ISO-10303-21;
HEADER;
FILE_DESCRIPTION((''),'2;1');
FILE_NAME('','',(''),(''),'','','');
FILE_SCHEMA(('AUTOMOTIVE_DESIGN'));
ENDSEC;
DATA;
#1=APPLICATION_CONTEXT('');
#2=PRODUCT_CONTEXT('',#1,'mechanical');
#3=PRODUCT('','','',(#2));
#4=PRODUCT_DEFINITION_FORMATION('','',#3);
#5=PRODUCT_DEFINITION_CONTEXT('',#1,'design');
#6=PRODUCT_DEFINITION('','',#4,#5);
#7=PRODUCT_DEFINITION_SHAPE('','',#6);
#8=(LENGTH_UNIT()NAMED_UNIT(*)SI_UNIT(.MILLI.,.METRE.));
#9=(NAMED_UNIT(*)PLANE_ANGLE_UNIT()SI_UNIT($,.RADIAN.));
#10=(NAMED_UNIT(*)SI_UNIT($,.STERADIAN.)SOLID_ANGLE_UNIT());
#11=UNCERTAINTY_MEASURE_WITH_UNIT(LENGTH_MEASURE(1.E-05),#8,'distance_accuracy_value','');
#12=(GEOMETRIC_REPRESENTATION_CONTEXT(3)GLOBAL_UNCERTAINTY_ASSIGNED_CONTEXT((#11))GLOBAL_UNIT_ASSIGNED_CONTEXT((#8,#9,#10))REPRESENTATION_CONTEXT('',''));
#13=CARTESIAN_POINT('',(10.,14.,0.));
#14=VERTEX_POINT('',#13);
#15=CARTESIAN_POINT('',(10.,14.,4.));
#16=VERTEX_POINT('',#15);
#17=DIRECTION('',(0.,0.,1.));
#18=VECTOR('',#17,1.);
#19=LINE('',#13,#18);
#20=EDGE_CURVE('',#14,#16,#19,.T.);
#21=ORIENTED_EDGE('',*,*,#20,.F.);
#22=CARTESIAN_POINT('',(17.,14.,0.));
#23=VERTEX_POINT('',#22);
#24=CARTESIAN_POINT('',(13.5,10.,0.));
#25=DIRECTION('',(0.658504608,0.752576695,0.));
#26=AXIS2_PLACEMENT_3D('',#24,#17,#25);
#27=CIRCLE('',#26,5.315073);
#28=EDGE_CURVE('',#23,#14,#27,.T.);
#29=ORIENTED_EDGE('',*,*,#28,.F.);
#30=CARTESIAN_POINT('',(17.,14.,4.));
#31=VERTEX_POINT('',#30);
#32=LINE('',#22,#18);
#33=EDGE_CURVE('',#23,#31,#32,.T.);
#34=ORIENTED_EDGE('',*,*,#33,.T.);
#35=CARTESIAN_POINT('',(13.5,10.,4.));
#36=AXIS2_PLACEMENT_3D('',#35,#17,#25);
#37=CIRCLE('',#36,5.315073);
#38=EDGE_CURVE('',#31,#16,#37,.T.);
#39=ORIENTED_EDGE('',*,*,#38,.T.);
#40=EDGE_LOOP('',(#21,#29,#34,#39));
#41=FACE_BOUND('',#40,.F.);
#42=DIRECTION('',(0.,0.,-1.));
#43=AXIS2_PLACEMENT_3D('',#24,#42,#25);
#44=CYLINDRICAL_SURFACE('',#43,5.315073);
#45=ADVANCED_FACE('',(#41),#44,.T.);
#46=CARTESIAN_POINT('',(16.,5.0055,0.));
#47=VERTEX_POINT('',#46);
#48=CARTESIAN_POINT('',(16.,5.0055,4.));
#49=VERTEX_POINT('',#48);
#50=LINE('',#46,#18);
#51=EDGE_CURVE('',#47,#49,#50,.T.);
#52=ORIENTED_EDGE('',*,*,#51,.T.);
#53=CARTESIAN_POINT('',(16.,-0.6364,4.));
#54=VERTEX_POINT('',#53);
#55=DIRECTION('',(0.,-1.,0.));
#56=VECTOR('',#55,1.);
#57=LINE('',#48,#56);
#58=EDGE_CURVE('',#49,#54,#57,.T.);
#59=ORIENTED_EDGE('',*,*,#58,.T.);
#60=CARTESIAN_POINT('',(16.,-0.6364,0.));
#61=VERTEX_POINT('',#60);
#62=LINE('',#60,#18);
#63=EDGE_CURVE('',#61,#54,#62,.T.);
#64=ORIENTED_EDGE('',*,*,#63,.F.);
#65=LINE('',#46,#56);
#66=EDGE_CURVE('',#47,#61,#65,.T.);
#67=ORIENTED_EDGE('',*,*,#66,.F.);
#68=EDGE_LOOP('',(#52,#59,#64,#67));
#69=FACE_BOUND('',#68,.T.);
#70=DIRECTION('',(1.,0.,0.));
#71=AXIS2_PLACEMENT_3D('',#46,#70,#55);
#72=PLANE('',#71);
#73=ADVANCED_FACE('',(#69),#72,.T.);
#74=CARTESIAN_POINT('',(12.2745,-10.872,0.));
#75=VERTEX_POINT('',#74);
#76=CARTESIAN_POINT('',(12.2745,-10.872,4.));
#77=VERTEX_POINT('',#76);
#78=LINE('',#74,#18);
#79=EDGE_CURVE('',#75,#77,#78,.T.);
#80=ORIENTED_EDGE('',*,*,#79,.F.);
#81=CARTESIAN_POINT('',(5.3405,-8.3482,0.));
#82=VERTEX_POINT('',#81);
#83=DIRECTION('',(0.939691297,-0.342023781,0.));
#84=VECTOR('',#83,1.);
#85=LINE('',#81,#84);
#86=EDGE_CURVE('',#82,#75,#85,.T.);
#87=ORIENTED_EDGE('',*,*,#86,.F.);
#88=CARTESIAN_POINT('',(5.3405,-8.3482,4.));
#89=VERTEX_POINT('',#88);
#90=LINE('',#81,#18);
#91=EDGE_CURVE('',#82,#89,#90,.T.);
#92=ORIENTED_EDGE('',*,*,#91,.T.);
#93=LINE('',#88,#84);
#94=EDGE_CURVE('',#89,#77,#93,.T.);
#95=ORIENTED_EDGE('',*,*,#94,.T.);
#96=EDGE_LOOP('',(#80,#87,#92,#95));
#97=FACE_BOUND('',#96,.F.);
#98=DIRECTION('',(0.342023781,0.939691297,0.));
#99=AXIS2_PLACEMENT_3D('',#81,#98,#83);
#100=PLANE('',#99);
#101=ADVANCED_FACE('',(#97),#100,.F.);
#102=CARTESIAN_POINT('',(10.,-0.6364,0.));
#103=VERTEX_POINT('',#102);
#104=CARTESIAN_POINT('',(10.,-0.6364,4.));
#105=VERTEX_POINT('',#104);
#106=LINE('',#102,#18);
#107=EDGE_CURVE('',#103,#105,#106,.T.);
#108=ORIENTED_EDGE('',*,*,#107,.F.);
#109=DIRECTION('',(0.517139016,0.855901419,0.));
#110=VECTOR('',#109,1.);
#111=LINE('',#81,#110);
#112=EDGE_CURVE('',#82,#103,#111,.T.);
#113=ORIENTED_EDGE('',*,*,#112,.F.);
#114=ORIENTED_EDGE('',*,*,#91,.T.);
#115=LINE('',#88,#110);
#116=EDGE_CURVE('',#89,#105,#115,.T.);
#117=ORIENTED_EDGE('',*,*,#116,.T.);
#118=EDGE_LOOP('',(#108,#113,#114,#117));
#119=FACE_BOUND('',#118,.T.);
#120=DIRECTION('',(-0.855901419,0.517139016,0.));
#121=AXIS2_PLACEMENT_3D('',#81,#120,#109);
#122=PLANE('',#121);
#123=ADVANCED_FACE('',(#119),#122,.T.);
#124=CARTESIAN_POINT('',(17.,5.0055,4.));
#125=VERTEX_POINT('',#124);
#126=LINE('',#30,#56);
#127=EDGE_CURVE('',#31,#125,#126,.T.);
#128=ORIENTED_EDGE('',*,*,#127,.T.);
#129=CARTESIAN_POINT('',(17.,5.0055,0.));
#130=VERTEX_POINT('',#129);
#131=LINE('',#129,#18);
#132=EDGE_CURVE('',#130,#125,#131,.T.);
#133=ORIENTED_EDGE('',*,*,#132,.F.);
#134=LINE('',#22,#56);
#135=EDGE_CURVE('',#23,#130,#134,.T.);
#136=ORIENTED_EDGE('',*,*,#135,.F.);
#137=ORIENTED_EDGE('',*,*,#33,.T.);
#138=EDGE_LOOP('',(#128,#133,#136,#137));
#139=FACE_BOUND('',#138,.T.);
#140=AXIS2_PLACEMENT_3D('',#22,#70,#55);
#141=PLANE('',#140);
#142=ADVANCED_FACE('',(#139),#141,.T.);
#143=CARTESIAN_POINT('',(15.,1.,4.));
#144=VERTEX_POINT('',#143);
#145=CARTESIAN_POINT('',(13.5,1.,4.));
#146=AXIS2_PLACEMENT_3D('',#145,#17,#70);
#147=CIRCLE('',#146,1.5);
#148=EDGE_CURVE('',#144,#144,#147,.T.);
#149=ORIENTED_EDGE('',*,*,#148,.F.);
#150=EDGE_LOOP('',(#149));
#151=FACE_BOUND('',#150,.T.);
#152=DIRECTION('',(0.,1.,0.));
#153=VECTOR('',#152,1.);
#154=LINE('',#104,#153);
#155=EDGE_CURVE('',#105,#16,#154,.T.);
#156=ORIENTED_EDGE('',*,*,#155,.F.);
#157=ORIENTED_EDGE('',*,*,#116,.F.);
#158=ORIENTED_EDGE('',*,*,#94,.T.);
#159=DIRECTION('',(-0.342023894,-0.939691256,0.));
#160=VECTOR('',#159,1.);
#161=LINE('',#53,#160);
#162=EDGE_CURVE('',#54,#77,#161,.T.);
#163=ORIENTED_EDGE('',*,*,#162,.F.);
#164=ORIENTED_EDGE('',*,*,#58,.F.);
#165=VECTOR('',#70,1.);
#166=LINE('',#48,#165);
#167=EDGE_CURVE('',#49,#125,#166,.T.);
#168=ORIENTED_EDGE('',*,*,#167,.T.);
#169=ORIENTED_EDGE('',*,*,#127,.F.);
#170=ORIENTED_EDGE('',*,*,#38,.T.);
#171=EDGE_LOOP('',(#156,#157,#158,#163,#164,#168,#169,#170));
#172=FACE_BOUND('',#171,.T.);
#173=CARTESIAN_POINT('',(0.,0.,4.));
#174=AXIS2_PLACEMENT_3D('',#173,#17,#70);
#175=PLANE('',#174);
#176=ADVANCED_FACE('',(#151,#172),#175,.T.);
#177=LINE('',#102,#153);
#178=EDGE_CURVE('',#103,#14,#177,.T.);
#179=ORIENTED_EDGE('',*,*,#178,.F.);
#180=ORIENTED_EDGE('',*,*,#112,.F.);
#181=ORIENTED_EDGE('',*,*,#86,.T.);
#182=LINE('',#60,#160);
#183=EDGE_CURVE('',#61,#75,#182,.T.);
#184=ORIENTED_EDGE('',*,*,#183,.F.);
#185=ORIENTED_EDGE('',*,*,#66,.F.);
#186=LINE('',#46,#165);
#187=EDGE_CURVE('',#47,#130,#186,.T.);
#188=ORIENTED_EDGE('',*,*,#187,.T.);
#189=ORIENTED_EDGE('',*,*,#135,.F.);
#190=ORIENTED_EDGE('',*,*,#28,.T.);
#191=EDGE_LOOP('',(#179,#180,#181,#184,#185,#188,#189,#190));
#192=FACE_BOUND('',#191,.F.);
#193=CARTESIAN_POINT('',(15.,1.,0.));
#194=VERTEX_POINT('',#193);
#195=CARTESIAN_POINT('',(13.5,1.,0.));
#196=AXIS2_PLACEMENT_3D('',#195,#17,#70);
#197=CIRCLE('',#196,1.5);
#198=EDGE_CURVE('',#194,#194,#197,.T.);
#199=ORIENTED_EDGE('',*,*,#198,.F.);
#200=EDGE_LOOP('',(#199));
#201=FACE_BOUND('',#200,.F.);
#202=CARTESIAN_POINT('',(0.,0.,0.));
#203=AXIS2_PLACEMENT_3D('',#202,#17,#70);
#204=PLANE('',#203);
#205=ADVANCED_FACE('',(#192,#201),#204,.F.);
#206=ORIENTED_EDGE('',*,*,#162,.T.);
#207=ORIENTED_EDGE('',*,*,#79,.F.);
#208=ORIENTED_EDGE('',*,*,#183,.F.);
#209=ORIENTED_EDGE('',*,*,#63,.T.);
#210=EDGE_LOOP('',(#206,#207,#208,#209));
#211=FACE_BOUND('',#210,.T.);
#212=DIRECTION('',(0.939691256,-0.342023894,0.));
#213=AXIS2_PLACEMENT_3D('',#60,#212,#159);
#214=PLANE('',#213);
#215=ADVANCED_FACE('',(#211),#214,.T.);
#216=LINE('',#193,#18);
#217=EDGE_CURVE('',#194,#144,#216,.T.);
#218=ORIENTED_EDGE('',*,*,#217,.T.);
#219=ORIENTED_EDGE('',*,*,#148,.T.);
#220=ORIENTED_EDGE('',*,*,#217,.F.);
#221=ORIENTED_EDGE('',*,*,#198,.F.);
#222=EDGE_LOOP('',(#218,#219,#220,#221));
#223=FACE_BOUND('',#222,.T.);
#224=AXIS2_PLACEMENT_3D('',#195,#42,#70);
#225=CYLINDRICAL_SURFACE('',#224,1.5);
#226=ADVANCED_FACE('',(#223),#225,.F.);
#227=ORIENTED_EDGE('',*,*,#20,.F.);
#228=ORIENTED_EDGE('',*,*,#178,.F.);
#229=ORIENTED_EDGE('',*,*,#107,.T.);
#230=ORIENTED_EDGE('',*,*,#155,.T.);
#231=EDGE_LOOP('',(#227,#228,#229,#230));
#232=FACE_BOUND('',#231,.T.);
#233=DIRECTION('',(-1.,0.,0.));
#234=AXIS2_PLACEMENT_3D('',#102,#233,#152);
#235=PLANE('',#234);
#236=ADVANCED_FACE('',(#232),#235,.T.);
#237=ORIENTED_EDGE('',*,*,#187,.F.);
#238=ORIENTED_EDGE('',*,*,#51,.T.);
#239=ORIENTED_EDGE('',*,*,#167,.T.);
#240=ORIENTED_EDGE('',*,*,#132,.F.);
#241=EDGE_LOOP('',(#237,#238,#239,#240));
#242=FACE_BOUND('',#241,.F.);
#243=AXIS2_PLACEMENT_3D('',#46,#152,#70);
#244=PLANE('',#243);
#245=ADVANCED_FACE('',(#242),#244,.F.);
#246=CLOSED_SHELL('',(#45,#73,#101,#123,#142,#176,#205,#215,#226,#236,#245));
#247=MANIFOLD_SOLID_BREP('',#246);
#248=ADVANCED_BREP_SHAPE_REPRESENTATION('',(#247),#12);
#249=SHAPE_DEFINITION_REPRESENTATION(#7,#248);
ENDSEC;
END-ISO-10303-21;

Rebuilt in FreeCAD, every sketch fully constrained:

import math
import FreeCAD as App
import Part
import Sketcher
Q = App.Units.Quantity

doc = App.newDocument("Part")
body = doc.addObject("PartDesign::Body", "Body")

sketch1 = body.newObject("Sketcher::SketchObject", "Sketch")
sketch1.AttachmentSupport = (doc.getObject("XY_Plane"), [""])
sketch1.MapMode = "FlatFace"
sketch1.addGeometry([
    Part.LineSegment(App.Vector(17, 5, 0), App.Vector(17, 14, 0)),
    Part.ArcOfCircle(Part.Circle(App.Vector(13.5, 10, 0), App.Vector(0, 0, 1), 5.3), math.radians(49), math.radians(131)),
    Part.LineSegment(App.Vector(10, 14, 0), App.Vector(10, -0.6, 0)),
    Part.LineSegment(App.Vector(10, -0.6, 0), App.Vector(5.3, -8.3, 0)),
    Part.LineSegment(App.Vector(5.3, -8.3, 0), App.Vector(12.3, -10.9, 0)),
    Part.LineSegment(App.Vector(12.3, -10.9, 0), App.Vector(16, -0.6, 0)),
    Part.LineSegment(App.Vector(16, -0.6, 0), App.Vector(16, 5, 0)),
    Part.LineSegment(App.Vector(16, 5, 0), App.Vector(17, 5, 0)),
    Part.Circle(App.Vector(13.5, 1, 0), App.Vector(0, 0, 1), 1.5),
], False)
sketch1.addConstraint([
    Sketcher.Constraint("Coincident", 0, 2, 1, 1),
    Sketcher.Constraint("Coincident", 1, 2, 2, 1),
    Sketcher.Constraint("Coincident", 2, 2, 3, 1),
    Sketcher.Constraint("Coincident", 3, 2, 4, 1),
    Sketcher.Constraint("Coincident", 4, 2, 5, 1),
    Sketcher.Constraint("Coincident", 5, 2, 6, 1),
    Sketcher.Constraint("Coincident", 6, 2, 7, 1),
    Sketcher.Constraint("Coincident", 7, 2, 0, 1),
    Sketcher.Constraint("Vertical", 0),
    Sketcher.Constraint("Vertical", 2),
    Sketcher.Constraint("Vertical", 6),
    Sketcher.Constraint("Horizontal", 7),
    Sketcher.Constraint("Perpendicular", 4, 5),
    Sketcher.Constraint("Horizontal", 0, 2, 1, 2),
    Sketcher.Constraint("Horizontal", 2, 2, 5, 2),
    Sketcher.Constraint("Vertical", 1, 3, 8, 3),
    Sketcher.Constraint("Diameter", 8, 3.0),
    Sketcher.Constraint("DistanceY", 8, 3, 1, 3, 9.0),
    Sketcher.Constraint("DistanceX", 7, 1, 7, 2, 1.0),
    Sketcher.Constraint("Angle", 4, Q("-20.0002 deg")),
    Sketcher.Constraint("DistanceY", -1, 1, 1, 3, 10.0),
    Sketcher.Constraint("DistanceX", -1, 1, 0, 2, 17.0),
    Sketcher.Constraint("DistanceY", -1, 1, 0, 2, 14.0),
    Sketcher.Constraint("DistanceX", -1, 1, 1, 2, 10.0),
    Sketcher.Constraint("Angle", 3, Q("-121.1405 deg")),
    Sketcher.Constraint("DistanceY", 2, 2, 8, 3, 1.6364),
    Sketcher.Constraint("DistanceY", 6, 1, 6, 2, 5.642),
    Sketcher.Constraint("Distance", 4, 7.379),
])
pad1 = body.newObject("PartDesign::Pad", "Pad")
pad1.Profile = sketch1
pad1.Length = 4

doc.recompute()
